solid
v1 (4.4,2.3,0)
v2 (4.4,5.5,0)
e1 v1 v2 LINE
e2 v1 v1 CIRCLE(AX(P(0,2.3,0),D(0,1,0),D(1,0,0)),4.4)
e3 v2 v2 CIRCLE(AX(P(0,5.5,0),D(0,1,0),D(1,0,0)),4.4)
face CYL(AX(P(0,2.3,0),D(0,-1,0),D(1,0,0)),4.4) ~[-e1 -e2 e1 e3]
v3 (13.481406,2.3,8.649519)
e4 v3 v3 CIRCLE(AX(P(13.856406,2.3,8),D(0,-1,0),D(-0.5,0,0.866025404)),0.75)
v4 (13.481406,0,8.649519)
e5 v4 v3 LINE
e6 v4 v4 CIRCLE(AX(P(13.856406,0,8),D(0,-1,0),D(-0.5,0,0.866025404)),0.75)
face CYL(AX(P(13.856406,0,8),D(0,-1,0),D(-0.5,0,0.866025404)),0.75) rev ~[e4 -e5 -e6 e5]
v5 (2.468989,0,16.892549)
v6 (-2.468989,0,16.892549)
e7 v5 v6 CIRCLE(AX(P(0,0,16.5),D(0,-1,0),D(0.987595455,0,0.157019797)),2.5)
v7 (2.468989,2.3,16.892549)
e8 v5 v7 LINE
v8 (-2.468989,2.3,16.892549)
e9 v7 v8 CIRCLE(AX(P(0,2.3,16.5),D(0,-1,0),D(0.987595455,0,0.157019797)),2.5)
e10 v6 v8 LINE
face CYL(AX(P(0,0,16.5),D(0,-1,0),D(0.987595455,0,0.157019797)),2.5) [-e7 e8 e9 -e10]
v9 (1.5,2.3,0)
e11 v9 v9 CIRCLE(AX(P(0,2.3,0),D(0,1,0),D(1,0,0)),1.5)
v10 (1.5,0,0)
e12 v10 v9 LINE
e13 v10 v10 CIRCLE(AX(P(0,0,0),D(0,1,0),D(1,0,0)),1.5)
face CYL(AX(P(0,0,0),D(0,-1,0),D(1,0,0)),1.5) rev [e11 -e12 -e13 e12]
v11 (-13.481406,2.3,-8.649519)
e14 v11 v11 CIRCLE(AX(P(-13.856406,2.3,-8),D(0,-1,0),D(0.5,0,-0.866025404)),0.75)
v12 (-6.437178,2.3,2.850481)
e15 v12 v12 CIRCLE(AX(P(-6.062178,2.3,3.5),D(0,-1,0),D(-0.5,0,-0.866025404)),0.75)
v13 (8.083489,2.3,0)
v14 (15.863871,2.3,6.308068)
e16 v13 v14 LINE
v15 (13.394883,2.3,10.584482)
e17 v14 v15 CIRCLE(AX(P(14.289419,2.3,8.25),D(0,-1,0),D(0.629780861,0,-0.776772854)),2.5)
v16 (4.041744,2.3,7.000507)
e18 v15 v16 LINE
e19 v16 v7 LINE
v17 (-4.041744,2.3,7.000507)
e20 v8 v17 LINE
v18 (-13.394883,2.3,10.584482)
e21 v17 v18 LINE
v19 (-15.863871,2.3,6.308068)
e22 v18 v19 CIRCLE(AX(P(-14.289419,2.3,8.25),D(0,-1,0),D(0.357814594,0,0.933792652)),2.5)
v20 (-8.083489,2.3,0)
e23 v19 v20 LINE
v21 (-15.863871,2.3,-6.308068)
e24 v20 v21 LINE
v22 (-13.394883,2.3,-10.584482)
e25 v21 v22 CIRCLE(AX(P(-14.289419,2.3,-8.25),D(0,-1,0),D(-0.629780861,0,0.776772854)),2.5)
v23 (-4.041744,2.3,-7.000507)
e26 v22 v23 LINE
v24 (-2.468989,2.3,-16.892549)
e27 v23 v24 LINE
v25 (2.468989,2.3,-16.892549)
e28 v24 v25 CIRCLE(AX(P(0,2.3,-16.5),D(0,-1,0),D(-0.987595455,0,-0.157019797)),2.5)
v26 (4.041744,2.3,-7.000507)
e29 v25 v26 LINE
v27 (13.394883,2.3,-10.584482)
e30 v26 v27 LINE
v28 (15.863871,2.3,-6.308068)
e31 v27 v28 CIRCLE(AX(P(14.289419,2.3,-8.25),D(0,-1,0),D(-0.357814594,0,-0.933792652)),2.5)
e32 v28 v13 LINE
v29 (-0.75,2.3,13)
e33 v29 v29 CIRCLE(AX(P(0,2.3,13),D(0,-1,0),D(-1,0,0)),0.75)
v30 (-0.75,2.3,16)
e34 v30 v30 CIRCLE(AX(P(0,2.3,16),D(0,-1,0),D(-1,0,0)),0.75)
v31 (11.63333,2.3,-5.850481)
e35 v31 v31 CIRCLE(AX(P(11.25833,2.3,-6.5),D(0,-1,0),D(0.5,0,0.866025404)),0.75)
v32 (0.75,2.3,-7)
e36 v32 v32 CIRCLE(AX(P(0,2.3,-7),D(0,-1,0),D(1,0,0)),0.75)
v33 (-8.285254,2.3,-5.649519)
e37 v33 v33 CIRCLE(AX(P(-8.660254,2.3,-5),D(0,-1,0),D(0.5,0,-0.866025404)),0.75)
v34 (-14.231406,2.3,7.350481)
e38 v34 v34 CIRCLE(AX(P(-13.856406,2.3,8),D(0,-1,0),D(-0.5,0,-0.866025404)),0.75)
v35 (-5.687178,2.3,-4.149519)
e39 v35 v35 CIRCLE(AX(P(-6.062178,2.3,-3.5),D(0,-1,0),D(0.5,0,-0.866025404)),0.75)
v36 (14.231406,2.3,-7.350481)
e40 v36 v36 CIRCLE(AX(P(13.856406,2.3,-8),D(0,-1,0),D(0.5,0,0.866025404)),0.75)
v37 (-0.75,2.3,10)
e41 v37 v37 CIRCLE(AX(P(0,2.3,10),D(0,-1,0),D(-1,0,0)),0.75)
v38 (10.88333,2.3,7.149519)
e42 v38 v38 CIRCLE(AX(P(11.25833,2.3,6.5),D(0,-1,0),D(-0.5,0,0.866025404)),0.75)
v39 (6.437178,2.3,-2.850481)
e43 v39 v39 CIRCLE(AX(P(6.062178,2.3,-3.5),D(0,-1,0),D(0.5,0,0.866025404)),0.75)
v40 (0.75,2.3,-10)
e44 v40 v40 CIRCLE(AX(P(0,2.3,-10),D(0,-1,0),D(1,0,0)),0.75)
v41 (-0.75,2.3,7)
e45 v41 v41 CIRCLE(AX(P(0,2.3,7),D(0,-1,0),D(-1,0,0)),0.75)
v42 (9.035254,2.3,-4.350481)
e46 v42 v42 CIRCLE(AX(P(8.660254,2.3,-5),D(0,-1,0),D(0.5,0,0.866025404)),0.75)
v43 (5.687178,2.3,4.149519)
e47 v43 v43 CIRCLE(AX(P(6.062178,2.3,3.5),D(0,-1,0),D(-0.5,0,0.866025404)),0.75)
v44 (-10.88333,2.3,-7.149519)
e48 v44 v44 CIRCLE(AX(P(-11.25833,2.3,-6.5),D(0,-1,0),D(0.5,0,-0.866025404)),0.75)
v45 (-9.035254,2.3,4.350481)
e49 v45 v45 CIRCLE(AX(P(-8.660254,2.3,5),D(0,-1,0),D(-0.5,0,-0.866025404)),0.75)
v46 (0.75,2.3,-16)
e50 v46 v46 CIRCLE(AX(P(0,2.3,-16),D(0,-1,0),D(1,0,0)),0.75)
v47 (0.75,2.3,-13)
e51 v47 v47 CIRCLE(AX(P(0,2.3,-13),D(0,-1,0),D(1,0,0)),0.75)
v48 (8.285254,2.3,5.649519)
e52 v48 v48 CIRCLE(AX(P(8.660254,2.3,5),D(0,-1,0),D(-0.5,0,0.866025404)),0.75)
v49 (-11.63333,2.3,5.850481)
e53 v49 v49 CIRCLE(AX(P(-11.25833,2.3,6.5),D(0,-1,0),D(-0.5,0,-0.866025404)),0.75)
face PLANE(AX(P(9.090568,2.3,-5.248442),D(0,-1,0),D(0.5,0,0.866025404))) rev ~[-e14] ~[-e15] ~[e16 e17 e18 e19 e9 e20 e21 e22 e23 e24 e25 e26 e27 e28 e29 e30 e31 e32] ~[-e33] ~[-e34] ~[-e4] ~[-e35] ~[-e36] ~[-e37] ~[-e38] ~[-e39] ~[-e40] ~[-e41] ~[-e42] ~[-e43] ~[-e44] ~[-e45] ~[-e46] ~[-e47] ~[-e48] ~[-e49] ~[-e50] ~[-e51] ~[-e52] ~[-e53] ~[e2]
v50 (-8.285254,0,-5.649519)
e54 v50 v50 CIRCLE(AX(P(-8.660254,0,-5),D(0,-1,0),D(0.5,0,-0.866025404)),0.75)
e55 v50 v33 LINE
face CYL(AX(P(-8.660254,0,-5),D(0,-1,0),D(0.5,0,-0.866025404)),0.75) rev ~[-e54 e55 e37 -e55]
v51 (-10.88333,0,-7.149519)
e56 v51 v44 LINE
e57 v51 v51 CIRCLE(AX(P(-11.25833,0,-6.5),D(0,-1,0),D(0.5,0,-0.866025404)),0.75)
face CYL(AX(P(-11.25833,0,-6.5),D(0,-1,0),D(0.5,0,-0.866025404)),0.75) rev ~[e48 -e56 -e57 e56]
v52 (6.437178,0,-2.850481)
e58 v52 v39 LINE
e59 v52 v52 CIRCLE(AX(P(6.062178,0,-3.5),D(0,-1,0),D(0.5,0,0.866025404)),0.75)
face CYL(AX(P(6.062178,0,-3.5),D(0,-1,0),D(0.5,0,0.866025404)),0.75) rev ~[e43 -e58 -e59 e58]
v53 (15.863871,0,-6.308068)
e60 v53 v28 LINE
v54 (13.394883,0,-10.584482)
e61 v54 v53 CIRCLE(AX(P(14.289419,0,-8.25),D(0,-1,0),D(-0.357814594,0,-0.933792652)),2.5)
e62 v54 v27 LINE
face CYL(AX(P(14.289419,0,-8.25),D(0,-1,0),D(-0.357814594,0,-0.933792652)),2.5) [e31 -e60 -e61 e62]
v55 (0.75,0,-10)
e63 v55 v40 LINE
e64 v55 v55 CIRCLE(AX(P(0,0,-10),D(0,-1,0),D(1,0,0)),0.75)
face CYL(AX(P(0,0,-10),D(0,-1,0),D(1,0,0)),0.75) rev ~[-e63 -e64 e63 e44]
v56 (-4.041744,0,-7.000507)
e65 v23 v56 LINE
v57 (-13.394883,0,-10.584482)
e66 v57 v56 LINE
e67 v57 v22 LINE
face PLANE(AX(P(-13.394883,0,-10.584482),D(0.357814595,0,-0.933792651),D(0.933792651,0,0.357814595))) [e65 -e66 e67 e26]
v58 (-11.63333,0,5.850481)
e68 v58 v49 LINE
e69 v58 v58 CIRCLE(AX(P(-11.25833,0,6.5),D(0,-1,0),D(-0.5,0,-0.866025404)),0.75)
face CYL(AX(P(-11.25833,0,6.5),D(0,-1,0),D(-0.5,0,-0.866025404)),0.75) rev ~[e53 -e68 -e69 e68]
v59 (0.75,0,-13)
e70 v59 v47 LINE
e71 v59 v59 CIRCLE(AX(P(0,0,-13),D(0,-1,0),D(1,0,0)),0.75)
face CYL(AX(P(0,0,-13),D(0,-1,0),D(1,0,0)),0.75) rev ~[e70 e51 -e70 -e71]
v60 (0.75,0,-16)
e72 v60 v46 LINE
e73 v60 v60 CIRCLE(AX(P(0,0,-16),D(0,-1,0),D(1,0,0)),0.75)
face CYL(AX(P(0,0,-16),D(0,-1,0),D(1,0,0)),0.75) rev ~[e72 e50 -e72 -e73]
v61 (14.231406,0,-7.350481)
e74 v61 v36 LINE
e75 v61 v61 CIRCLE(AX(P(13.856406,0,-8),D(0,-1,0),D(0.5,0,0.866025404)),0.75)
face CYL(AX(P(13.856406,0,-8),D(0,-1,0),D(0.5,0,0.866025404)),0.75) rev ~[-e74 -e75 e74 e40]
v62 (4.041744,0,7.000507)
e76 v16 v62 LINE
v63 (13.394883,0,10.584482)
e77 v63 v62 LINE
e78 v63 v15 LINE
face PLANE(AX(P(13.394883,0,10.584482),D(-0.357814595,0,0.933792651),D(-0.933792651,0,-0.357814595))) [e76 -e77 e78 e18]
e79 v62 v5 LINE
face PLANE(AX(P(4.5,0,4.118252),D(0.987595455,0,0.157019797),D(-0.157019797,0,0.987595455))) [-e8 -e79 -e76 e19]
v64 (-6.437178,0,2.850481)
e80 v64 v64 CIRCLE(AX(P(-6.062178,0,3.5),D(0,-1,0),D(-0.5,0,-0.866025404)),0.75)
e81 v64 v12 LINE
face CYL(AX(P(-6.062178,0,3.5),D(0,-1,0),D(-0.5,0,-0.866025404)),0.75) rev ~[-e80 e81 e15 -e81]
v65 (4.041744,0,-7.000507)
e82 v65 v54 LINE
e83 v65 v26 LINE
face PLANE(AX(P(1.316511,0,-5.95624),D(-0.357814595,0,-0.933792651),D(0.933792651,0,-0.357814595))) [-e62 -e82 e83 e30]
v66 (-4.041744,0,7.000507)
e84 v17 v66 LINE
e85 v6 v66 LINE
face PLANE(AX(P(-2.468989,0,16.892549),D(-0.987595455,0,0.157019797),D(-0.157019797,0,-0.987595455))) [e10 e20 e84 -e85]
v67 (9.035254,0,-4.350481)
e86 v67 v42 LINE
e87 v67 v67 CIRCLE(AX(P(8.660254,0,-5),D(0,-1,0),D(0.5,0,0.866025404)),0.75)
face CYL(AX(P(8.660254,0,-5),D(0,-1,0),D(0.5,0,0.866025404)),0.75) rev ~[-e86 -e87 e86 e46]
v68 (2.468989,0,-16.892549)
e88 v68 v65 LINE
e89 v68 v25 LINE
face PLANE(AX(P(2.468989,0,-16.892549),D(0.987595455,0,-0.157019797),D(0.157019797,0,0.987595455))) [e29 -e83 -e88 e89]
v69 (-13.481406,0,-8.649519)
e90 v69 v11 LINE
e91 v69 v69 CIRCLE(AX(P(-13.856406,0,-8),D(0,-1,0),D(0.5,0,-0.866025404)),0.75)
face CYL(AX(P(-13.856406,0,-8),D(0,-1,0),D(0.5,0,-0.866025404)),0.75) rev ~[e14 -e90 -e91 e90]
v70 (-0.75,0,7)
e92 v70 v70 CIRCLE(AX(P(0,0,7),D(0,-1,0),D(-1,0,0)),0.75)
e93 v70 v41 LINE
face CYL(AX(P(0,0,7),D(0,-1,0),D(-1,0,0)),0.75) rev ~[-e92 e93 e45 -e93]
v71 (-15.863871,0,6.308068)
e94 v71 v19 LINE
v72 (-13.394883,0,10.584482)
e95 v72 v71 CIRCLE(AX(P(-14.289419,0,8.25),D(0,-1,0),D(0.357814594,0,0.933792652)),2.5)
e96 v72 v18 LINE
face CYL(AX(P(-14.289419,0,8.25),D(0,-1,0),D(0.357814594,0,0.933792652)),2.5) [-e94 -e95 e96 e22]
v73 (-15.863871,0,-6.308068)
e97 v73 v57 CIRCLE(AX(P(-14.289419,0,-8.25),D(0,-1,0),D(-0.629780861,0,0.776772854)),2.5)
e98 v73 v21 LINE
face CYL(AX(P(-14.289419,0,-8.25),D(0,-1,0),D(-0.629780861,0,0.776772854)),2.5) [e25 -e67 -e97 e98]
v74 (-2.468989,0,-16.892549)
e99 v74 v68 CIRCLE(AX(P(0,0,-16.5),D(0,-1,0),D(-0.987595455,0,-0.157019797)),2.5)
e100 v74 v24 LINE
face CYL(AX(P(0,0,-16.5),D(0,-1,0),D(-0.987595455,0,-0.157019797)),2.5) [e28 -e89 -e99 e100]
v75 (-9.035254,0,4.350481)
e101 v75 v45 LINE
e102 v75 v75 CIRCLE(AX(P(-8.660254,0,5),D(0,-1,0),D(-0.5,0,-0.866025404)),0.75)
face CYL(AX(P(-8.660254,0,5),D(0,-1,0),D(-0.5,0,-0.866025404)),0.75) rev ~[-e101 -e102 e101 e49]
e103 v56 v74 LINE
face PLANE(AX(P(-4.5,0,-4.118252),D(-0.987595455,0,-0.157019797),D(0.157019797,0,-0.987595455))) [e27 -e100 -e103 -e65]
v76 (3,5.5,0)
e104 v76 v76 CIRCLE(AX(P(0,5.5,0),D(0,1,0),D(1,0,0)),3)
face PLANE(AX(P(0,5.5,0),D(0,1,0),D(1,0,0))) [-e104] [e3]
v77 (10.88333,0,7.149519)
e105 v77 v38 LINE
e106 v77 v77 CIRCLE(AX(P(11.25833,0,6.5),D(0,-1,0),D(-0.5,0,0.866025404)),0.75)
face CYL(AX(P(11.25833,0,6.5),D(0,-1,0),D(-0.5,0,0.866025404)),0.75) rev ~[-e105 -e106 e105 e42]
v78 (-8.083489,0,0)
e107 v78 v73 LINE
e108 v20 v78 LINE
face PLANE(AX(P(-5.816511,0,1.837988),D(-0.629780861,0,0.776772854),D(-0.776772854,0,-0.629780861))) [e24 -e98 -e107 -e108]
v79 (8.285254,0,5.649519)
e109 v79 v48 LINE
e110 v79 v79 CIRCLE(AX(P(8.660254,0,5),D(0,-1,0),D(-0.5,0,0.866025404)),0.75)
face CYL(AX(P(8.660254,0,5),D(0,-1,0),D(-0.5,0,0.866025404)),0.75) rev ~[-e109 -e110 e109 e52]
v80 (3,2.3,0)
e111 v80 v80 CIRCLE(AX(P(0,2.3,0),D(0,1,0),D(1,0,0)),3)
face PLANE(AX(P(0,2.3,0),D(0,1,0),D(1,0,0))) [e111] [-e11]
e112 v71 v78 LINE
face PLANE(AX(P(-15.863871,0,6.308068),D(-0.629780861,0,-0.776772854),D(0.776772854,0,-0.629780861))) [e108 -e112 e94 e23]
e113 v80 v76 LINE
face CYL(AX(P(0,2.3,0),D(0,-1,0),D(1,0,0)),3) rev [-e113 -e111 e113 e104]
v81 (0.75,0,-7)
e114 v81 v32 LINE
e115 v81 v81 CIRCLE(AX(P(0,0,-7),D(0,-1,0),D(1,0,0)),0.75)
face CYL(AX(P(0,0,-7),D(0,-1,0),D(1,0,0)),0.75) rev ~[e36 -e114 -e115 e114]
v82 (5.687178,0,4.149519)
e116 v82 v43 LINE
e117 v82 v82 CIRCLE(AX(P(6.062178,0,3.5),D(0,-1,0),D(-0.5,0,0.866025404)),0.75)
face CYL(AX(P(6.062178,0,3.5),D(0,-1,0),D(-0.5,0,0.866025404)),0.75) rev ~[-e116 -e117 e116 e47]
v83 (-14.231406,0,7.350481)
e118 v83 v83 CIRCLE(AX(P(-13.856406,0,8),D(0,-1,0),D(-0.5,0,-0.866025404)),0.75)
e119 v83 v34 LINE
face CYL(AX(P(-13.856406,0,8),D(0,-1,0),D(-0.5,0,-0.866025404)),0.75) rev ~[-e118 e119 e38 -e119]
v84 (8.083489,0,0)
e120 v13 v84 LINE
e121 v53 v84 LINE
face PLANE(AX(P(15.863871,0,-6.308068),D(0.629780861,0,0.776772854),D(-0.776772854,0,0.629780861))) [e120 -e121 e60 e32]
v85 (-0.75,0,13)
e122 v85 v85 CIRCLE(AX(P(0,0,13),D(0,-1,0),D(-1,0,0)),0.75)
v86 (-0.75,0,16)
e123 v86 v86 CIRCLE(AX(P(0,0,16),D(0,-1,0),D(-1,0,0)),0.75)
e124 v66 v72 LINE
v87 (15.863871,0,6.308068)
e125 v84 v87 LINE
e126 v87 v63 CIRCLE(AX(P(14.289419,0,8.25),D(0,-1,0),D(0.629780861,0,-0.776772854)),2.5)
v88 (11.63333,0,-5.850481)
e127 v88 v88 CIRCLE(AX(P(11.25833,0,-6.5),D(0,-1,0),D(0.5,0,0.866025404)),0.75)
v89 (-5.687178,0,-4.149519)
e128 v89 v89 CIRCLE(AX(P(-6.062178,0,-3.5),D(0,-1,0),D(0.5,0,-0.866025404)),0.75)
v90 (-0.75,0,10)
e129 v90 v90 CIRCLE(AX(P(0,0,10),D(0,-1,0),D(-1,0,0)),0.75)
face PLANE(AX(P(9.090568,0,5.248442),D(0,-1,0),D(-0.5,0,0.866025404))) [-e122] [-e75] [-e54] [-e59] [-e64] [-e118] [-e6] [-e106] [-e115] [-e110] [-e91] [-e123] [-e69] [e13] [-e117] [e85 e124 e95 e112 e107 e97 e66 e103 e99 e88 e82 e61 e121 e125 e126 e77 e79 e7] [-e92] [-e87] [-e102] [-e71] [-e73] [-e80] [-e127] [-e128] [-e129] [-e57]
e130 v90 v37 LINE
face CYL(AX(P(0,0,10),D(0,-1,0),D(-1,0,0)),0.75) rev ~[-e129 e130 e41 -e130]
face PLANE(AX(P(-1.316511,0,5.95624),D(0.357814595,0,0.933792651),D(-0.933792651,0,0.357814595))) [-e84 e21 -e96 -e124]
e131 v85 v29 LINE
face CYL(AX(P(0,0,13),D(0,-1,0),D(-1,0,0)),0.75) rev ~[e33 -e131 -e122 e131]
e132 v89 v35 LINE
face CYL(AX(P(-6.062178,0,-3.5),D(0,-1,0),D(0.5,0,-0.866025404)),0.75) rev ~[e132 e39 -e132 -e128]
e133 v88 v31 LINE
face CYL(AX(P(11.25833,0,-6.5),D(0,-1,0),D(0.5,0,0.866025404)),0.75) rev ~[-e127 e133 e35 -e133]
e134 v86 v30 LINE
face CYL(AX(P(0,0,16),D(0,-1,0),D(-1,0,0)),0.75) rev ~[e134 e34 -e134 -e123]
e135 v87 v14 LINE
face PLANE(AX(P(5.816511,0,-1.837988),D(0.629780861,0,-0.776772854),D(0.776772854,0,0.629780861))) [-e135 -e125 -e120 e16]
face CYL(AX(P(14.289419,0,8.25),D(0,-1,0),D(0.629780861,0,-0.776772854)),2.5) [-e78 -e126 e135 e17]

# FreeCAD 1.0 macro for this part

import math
import FreeCAD as App
import Part
import Sketcher

doc = App.newDocument("Part")
body = doc.addObject("PartDesign::Body", "Body")

sketch1 = body.newObject("Sketcher::SketchObject", "Sketch")
sketch1.AttachmentSupport = (doc.getObject("XZ_Plane"), [""])
sketch1.MapMode = "FlatFace"
sketch1.addGeometry(Part.Circle(App.Vector(0, 0, 0), App.Vector(0, 0, 1), 6.1), False)
sketch1.addGeometry(Part.Circle(App.Vector(0, 0, 0), App.Vector(0, 0, 1), 1.5), False)
sketch1.addConstraint(Sketcher.Constraint("Coincident", 0, 3, -1, 1))
sketch1.addConstraint(Sketcher.Constraint("Coincident", 1, 3, -1, 1))
sketch1.addConstraint(Sketcher.Constraint("Diameter", 1, 3.0))
sketch1.addConstraint(Sketcher.Constraint("Diameter", 0, 12.2))
pad1 = body.newObject("PartDesign::Pad", "Pad")
pad1.Profile = sketch1
pad1.Length = 2.3
pad1.Reversed = True

sketch2 = body.newObject("Sketcher::SketchObject", "Sketch001")
sketch2.AttachmentSupport = (doc.getObject("XZ_Plane"), [""])
sketch2.MapMode = "FlatFace"
sketch2.AttachmentOffset = App.Placement(App.Vector(0, 0, -2.3), App.Rotation())
sketch2.addGeometry(Part.Circle(App.Vector(0, 0, 0), App.Vector(0, 0, 1), 4.4), False)
sketch2.addGeometry(Part.Circle(App.Vector(0, 0, 0), App.Vector(0, 0, 1), 3), False)
sketch2.addConstraint(Sketcher.Constraint("Coincident", 0, 3, -1, 1))
sketch2.addConstraint(Sketcher.Constraint("Coincident", 1, 3, -1, 1))
sketch2.addConstraint(Sketcher.Constraint("Diameter", 1, 6.0))
sketch2.addConstraint(Sketcher.Constraint("Diameter", 0, 8.8))
pad2 = body.newObject("PartDesign::Pad", "Pad001")
pad2.Profile = sketch2
pad2.Length = 3.2
pad2.Reversed = True

sketch3 = body.newObject("Sketcher::SketchObject", "Sketch002")
sketch3.AttachmentSupport = (doc.getObject("XZ_Plane"), [""])
sketch3.MapMode = "FlatFace"
sketch3.addGeometry(Part.LineSegment(App.Vector(-4.5, -4.118252, 0), App.Vector(-2.468989, -16.892549, 0)), False)
sketch3.addGeometry(Part.ArcOfCircle(Part.Circle(App.Vector(0, -16.5, 0), App.Vector(0, 0, 1), 2.5), math.radians(-170.966043), math.radians(-9.033957)), False)
sketch3.addGeometry(Part.LineSegment(App.Vector(2.468989, -16.892549, 0), App.Vector(4.5, -4.118252, 0)), False)
sketch3.addGeometry(Part.ArcOfCircle(Part.Circle(App.Vector(0, 0, 0), App.Vector(0, 0, 1), 6.1), math.radians(-137.536275), math.radians(-42.463725)), False)
sketch3.addGeometry(Part.Circle(App.Vector(0, -16, 0), App.Vector(0, 0, 1), 0.75), False)
sketch3.addGeometry(Part.Circle(App.Vector(0, -13, 0), App.Vector(0, 0, 1), 0.75), False)
sketch3.addGeometry(Part.Circle(App.Vector(0, -10, 0), App.Vector(0, 0, 1), 0.75), False)
sketch3.addGeometry(Part.Circle(App.Vector(0, -7, 0), App.Vector(0, 0, 1), 0.75), False)
sketch3.addConstraint(Sketcher.Constraint("Tangent", 0, 2, 1, 1))
sketch3.addConstraint(Sketcher.Constraint("Tangent", 1, 2, 2, 1))
sketch3.addConstraint(Sketcher.Constraint("Coincident", 2, 2, 3, 2))
sketch3.addConstraint(Sketcher.Constraint("Coincident", 3, 1, 0, 1))
sketch3.addConstraint(Sketcher.Constraint("Coincident", 3, 3, -1, 1))
sketch3.addConstraint(Sketcher.Constraint("Equal", 4, 5))
sketch3.addConstraint(Sketcher.Constraint("Equal", 5, 6))
sketch3.addConstraint(Sketcher.Constraint("Equal", 6, 7))
sketch3.addConstraint(Sketcher.Constraint("Symmetric", 0, 2, 1, 2, -2))
sketch3.addConstraint(Sketcher.Constraint("PointOnObject", 4, 3, -2))
sketch3.addConstraint(Sketcher.Constraint("PointOnObject", 5, 3, -2))
sketch3.addConstraint(Sketcher.Constraint("PointOnObject", 6, 3, -2))
sketch3.addConstraint(Sketcher.Constraint("PointOnObject", 7, 3, -2))
sketch3.addConstraint(Sketcher.Constraint("Diameter", 4, 1.5))
sketch3.addConstraint(Sketcher.Constraint("Radius", 1, 2.5))
sketch3.addConstraint(Sketcher.Constraint("Radius", 3, 6.1))
sketch3.addConstraint(Sketcher.Constraint("DistanceY", 4, 3, -1, 1, 16.0))
sketch3.addConstraint(Sketcher.Constraint("DistanceY", 5, 3, -1, 1, 13.0))
sketch3.addConstraint(Sketcher.Constraint("DistanceY", 6, 3, -1, 1, 10.0))
sketch3.addConstraint(Sketcher.Constraint("DistanceY", 7, 3, -1, 1, 7.0))
sketch3.addConstraint(Sketcher.Constraint("DistanceX", 3, 1, 2, 2, 9.0))
sketch3.addConstraint(Sketcher.Constraint("DistanceY", 1, 3, -1, 1, 16.5))
pad3 = body.newObject("PartDesign::Pad", "Pad002")
pad3.Profile = sketch3
pad3.Length = 2.3
pad3.Reversed = True
doc.recompute()

polarpattern = body.newObject("PartDesign::PolarPattern", "PolarPattern")
polarpattern.Originals = [pad3]
polarpattern.Axis = (doc.getObject("Y_Axis"), [""])
polarpattern.Angle = 360
polarpattern.Occurrences = 6
body.Tip = polarpattern

doc.recompute()
